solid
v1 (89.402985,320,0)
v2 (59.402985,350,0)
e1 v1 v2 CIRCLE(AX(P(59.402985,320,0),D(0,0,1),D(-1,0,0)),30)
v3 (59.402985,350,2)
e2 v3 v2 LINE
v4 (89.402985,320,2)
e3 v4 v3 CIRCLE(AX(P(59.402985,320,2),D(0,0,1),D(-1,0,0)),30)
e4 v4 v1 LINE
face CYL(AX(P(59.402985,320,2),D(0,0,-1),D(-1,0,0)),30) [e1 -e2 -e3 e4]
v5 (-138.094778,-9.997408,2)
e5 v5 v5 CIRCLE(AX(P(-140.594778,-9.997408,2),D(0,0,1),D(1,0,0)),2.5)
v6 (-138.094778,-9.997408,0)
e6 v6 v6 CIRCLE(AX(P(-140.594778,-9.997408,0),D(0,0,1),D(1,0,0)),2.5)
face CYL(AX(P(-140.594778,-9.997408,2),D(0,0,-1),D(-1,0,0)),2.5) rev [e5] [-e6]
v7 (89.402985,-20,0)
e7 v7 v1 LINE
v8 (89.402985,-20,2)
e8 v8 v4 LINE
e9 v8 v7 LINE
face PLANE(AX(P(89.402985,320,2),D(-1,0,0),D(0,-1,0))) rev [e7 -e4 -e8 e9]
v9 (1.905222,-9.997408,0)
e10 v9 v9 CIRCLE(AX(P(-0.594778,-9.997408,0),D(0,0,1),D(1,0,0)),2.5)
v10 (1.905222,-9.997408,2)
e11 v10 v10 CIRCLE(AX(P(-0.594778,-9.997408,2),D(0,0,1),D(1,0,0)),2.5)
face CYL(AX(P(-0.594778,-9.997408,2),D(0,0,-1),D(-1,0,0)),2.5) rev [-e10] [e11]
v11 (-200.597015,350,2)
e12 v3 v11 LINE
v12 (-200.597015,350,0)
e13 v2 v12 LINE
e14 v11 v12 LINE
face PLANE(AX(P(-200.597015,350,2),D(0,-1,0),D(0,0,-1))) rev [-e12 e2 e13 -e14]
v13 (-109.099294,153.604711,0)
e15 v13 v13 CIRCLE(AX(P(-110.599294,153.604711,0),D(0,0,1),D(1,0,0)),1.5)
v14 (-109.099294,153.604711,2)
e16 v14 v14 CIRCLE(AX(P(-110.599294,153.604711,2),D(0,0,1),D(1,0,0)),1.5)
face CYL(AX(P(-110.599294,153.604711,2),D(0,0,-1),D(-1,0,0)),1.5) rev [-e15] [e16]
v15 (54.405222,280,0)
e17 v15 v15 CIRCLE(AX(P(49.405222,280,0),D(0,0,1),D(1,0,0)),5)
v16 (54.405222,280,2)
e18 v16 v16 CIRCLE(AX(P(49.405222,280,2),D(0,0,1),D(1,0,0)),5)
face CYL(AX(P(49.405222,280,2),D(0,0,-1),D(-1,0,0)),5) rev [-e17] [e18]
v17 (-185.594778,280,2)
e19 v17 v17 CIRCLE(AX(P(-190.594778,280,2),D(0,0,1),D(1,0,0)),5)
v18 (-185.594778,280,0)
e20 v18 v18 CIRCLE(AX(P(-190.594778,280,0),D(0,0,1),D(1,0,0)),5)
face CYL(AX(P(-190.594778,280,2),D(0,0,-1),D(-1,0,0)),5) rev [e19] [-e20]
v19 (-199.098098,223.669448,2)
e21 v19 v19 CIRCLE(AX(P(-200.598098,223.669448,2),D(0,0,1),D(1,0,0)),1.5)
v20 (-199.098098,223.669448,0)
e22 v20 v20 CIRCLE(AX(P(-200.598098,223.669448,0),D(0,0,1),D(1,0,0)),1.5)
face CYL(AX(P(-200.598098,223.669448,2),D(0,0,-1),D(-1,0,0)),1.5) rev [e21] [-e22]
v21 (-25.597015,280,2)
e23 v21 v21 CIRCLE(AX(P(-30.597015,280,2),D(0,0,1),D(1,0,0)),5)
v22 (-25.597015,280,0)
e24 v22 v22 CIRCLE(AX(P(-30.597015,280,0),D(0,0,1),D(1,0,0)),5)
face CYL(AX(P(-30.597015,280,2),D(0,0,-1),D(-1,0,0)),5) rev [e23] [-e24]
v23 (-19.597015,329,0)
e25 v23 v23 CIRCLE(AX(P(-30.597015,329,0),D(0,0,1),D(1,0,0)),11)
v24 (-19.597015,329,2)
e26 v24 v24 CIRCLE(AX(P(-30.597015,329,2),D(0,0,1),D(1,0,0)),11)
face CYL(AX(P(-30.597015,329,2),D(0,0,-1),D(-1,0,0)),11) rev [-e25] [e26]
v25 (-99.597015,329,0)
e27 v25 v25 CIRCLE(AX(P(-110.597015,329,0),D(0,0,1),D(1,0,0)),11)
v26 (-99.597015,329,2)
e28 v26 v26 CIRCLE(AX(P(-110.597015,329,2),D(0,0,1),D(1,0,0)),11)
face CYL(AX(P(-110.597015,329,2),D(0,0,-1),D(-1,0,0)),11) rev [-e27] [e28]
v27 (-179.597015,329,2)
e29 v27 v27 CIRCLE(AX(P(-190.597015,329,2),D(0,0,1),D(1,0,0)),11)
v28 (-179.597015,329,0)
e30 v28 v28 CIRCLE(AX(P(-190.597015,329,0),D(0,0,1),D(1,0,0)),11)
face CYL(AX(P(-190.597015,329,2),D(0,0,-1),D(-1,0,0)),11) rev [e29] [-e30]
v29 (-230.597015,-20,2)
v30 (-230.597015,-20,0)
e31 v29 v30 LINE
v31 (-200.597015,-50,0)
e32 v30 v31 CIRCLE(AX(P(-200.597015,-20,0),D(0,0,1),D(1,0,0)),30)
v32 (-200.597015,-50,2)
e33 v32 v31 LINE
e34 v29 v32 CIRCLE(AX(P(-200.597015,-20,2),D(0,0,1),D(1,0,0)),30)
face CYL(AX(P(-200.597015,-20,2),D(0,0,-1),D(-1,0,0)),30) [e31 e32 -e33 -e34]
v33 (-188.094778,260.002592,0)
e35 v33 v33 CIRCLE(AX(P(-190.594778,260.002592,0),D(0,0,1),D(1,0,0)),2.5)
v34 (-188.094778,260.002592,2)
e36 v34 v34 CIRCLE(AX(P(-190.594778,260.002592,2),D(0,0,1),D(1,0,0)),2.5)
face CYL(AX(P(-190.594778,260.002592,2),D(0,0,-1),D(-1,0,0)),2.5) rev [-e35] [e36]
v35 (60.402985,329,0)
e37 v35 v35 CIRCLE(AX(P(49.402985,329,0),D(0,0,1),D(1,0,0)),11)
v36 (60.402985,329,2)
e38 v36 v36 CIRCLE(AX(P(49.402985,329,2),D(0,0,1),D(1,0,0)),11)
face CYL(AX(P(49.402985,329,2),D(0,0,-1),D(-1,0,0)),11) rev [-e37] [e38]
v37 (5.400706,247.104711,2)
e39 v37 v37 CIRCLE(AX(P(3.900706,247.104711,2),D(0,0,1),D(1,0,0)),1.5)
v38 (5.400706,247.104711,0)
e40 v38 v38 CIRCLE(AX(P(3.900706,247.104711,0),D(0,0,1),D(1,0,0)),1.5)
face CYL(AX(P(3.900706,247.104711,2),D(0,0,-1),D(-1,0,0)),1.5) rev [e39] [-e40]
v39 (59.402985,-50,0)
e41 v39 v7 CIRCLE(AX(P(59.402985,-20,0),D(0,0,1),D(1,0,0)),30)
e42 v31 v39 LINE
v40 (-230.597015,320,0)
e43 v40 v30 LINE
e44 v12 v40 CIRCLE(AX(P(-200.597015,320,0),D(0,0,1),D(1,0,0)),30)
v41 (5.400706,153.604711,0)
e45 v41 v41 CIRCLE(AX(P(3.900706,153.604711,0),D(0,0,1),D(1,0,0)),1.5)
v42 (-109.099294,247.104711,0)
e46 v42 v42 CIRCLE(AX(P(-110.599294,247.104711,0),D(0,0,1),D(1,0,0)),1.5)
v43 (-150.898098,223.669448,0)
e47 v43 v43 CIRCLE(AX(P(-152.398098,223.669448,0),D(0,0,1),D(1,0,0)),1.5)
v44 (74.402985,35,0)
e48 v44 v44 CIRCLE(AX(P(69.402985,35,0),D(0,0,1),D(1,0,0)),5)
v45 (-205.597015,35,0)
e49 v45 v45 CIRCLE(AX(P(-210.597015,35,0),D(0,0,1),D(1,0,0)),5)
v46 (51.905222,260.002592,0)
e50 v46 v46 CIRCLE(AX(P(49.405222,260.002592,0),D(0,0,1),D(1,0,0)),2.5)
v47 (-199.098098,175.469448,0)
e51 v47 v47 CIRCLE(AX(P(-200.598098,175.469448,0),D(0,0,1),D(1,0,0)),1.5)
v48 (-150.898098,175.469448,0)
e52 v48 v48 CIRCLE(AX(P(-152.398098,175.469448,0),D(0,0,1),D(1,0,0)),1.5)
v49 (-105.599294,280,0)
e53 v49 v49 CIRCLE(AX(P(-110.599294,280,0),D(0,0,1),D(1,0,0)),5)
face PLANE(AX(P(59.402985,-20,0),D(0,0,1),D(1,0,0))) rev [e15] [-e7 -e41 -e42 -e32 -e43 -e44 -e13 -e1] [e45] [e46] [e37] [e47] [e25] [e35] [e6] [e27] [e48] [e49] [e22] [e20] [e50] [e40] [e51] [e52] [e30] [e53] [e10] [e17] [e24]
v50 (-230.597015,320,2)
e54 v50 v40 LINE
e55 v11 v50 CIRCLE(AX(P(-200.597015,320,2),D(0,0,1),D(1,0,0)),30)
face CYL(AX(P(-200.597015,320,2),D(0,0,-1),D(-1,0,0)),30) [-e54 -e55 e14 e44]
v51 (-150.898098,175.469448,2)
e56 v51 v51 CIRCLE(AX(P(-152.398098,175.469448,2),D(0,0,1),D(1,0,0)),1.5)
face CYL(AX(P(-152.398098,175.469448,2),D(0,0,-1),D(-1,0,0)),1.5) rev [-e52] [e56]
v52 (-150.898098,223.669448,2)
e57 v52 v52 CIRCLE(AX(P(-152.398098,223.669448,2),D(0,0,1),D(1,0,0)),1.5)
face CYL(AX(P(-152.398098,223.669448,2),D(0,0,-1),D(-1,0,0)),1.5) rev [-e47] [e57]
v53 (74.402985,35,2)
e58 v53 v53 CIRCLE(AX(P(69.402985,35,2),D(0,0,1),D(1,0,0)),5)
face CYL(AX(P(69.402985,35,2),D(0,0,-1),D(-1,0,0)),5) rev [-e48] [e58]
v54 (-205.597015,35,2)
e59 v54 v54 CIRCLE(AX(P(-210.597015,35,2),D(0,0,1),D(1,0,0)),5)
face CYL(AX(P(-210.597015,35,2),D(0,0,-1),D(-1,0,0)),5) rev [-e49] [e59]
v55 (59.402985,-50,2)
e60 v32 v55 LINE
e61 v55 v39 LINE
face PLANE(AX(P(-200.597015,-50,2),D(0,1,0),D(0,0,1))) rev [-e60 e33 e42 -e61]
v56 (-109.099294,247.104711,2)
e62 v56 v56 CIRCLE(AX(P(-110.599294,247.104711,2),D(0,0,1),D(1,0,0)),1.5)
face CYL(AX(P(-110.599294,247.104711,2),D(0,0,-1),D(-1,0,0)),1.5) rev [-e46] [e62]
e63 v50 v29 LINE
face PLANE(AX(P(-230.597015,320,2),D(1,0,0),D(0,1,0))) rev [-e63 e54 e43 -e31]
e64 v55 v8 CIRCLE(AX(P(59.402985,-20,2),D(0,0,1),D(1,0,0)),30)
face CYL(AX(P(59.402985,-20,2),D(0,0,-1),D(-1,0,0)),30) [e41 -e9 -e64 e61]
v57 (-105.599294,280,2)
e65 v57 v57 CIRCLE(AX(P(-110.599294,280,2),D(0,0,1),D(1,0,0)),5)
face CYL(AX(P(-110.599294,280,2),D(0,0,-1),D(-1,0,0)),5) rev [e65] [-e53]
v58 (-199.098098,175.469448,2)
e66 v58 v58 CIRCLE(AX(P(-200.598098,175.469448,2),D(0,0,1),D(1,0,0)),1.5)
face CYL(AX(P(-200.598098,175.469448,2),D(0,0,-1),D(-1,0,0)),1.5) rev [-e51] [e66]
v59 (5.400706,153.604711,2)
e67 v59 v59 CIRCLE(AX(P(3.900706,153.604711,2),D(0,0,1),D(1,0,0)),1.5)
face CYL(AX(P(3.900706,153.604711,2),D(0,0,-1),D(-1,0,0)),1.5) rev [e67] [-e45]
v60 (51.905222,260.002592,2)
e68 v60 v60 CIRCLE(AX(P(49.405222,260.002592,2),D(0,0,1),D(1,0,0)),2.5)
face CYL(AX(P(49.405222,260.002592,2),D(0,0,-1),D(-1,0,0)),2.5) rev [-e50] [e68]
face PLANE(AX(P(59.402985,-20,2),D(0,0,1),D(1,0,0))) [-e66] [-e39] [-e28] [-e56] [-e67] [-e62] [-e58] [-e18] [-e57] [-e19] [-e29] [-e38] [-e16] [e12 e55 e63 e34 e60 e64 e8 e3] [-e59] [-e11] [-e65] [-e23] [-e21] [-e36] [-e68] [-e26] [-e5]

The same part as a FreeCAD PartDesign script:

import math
import FreeCAD as App
import Part
import Sketcher
from FreeCAD import Vector

doc = App.newDocument("Part")
body = doc.addObject("PartDesign::Body", "Body")

sketch1 = doc.addObject("Sketcher::SketchObject", "Sketch")
body.addObject(sketch1)
sketch1.AttachmentSupport = (doc.XY_Plane, [""])
sketch1.MapMode = "FlatFace"
sketch1.addGeometry([
    Part.LineSegment(Vector(59.4, 350, 0), Vector(-200.6, 350, 0)),
    Part.ArcOfCircle(Part.Circle(Vector(-200.6, 320, 0), Vector(0, 0, 1), 30), math.radians(90), math.radians(180)),
    Part.LineSegment(Vector(-230.6, 320, 0), Vector(-230.6, -20, 0)),
    Part.ArcOfCircle(Part.Circle(Vector(-200.6, -20, 0), Vector(0, 0, 1), 30), math.radians(180), math.radians(270)),
    Part.LineSegment(Vector(-200.6, -50, 0), Vector(59.4, -50, 0)),
    Part.ArcOfCircle(Part.Circle(Vector(59.4, -20, 0), Vector(0, 0, 1), 30), math.radians(-90), math.radians(0)),
    Part.LineSegment(Vector(89.4, -20, 0), Vector(89.4, 320, 0)),
    Part.ArcOfCircle(Part.Circle(Vector(59.4, 320, 0), Vector(0, 0, 1), 30), math.radians(0), math.radians(90)),
    Part.Circle(Vector(69.4, 35, 0), Vector(0, 0, 1), 5),
    Part.Circle(Vector(-0.6, -10, 0), Vector(0, 0, 1), 2.5),
    Part.Circle(Vector(3.9, 153.6, 0), Vector(0, 0, 1), 1.5),
    Part.Circle(Vector(-140.6, -10, 0), Vector(0, 0, 1), 2.5),
    Part.Circle(Vector(-210.6, 35, 0), Vector(0, 0, 1), 5),
    Part.Circle(Vector(-110.6, 153.6, 0), Vector(0, 0, 1), 1.5),
    Part.Circle(Vector(3.9, 247.1, 0), Vector(0, 0, 1), 1.5),
    Part.Circle(Vector(49.4, 260, 0), Vector(0, 0, 1), 2.5),
    Part.Circle(Vector(49.4, 280, 0), Vector(0, 0, 1), 5),
    Part.Circle(Vector(49.4, 329, 0), Vector(0, 0, 1), 11),
    Part.Circle(Vector(-30.6, 280, 0), Vector(0, 0, 1), 5),
    Part.Circle(Vector(-30.6, 329, 0), Vector(0, 0, 1), 11),
    Part.Circle(Vector(-110.6, 247.1, 0), Vector(0, 0, 1), 1.5),
    Part.Circle(Vector(-152.4, 175.5, 0), Vector(0, 0, 1), 1.5),
    Part.Circle(Vector(-200.6, 175.5, 0), Vector(0, 0, 1), 1.5),
    Part.Circle(Vector(-152.4, 223.7, 0), Vector(0, 0, 1), 1.5),
    Part.Circle(Vector(-200.6, 223.7, 0), Vector(0, 0, 1), 1.5),
    Part.Circle(Vector(-110.6, 280, 0), Vector(0, 0, 1), 5),
    Part.Circle(Vector(-110.6, 329, 0), Vector(0, 0, 1), 11),
    Part.Circle(Vector(-190.6, 260, 0), Vector(0, 0, 1), 2.5),
    Part.Circle(Vector(-190.6, 280, 0), Vector(0, 0, 1), 5),
    Part.Circle(Vector(-190.6, 329, 0), Vector(0, 0, 1), 11),
], False)
sketch1.addConstraint([
    Sketcher.Constraint("Tangent", 0, 2, 1, 1),
    Sketcher.Constraint("Tangent", 1, 2, 2, 1),
    Sketcher.Constraint("Tangent", 2, 2, 3, 1),
    Sketcher.Constraint("Tangent", 3, 2, 4, 1),
    Sketcher.Constraint("Tangent", 4, 2, 5, 1),
    Sketcher.Constraint("Tangent", 5, 2, 6, 1),
    Sketcher.Constraint("Tangent", 6, 2, 7, 1),
    Sketcher.Constraint("Tangent", 7, 2, 0, 1),
    Sketcher.Constraint("Horizontal", 0),
    Sketcher.Constraint("Vertical", 2),
    Sketcher.Constraint("Horizontal", 4),
    Sketcher.Constraint("Vertical", 6),
    Sketcher.Constraint("Equal", 1, 3),
    Sketcher.Constraint("Equal", 3, 5),
    Sketcher.Constraint("Equal", 5, 7),
    Sketcher.Constraint("Equal", 9, 11),
    Sketcher.Constraint("Equal", 8, 12),
    Sketcher.Constraint("Equal", 10, 13),
    Sketcher.Constraint("Equal", 13, 14),
    Sketcher.Constraint("Equal", 11, 15),
    Sketcher.Constraint("Equal", 12, 16),
    Sketcher.Constraint("Equal", 16, 18),
    Sketcher.Constraint("Equal", 17, 19),
    Sketcher.Constraint("Equal", 14, 20),
    Sketcher.Constraint("Equal", 20, 21),
    Sketcher.Constraint("Equal", 21, 22),
    Sketcher.Constraint("Equal", 22, 23),
    Sketcher.Constraint("Equal", 23, 24),
    Sketcher.Constraint("Equal", 18, 25),
    Sketcher.Constraint("Equal", 19, 26),
    Sketcher.Constraint("Equal", 15, 27),
    Sketcher.Constraint("Equal", 25, 28),
    Sketcher.Constraint("Equal", 26, 29),
    Sketcher.Constraint("Horizontal", 9, 3, 11, 3),
    Sketcher.Constraint("Horizontal", 8, 3, 12, 3),
    Sketcher.Constraint("Horizontal", 10, 3, 13, 3),
    Sketcher.Constraint("Horizontal", 16, 3, 18, 3),
    Sketcher.Constraint("Horizontal", 17, 3, 19, 3),
    Sketcher.Constraint("Horizontal", 14, 3, 20, 3),
    Sketcher.Constraint("Horizontal", 21, 3, 22, 3),
    Sketcher.Constraint("Horizontal", 23, 3, 24, 3),
    Sketcher.Constraint("Horizontal", 18, 3, 25, 3),
    Sketcher.Constraint("Horizontal", 19, 3, 26, 3),
    Sketcher.Constraint("Horizontal", 15, 3, 27, 3),
    Sketcher.Constraint("Horizontal", 25, 3, 28, 3),
    Sketcher.Constraint("Horizontal", 26, 3, 29, 3),
    Sketcher.Constraint("Vertical", 10, 3, 14, 3),
    Sketcher.Constraint("Vertical", 15, 3, 16, 3),
    Sketcher.Constraint("Vertical", 18, 3, 19, 3),
    Sketcher.Constraint("Vertical", 13, 3, 20, 3),
    Sketcher.Constraint("Vertical", 21, 3, 23, 3),
    Sketcher.Constraint("Vertical", 22, 3, 24, 3),
    Sketcher.Constraint("Vertical", 20, 3, 25, 3),
    Sketcher.Constraint("Vertical", 27, 3, 28, 3),
    Sketcher.Constraint("Diameter", 8, 10.0),
    Sketcher.Constraint("Diameter", 9, 5.0),
    Sketcher.Constraint("Diameter", 10, 3.0),
    Sketcher.Constraint("Diameter", 17, 22.0),
    Sketcher.Constraint("Radius", 1, 30.0),
    Sketcher.Constraint("DistanceX", 0, 2, 0, 1, 260.0),
    Sketcher.Constraint("DistanceY", 2, 2, 2, 1, 340.0),
    Sketcher.Constraint("DistanceY", -1, 1, 1, 3, 320.0),
    Sketcher.Constraint("DistanceY", -1, 1, 8, 3, 35.0),
    Sketcher.Constraint("DistanceY", -1, 1, 16, 3, 280.0),
    Sketcher.Constraint("DistanceY", -1, 1, 17, 3, 329.0),
    Sketcher.Constraint("DistanceX", 5, 3, 8, 3, 10.0),
    Sketcher.Constraint("DistanceX", 11, 3, 9, 3, 140.0),
    Sketcher.Constraint("DistanceX", 12, 3, 3, 3, 10.0),
    Sketcher.Constraint("DistanceX", 17, 3, 7, 3, 10.0),
    Sketcher.Constraint("DistanceX", 18, 3, 17, 3, 80.0),
    Sketcher.Constraint("DistanceX", 26, 3, 19, 3, 80.0),
    Sketcher.Constraint("DistanceX", 1, 3, 29, 3, 10.0),
    Sketcher.Constraint("DistanceX", 13, 3, 10, 3, 114.5),
    Sketcher.Constraint("DistanceY", 10, 3, 14, 3, 93.5),
    Sketcher.Constraint("DistanceX", 22, 3, 21, 3, 48.2),
    Sketcher.Constraint("DistanceY", 21, 3, 23, 3, 48.2),
    Sketcher.Constraint("DistanceY", -1, 1, 10, 3, 153.604711),
    Sketcher.Constraint("DistanceY", -1, 1, 21, 3, 175.469448),
    Sketcher.Constraint("DistanceX", 10, 3, 8, 3, 65.502279),
    Sketcher.Constraint("DistanceY", 9, 3, 10, 3, 163.602119),
    Sketcher.Constraint("DistanceY", 14, 3, 15, 3, 12.897881),
    Sketcher.Constraint("DistanceX", 24, 3, 27, 3, 10.00332),
    Sketcher.Constraint("DistanceX", 1, 3, -1, 1, 200.597015),
    Sketcher.Constraint("DistanceX", 9, 3, -1, 1, 0.594778),
    Sketcher.Constraint("DistanceX", -1, 1, 15, 3, 49.405222),
    Sketcher.Constraint("DistanceX", 21, 3, -1, 1, 152.398098),
])
pad1 = doc.addObject("PartDesign::Pad", "Pad")
body.addObject(pad1)
pad1.Profile = sketch1
pad1.Length = 2

doc.recompute()
